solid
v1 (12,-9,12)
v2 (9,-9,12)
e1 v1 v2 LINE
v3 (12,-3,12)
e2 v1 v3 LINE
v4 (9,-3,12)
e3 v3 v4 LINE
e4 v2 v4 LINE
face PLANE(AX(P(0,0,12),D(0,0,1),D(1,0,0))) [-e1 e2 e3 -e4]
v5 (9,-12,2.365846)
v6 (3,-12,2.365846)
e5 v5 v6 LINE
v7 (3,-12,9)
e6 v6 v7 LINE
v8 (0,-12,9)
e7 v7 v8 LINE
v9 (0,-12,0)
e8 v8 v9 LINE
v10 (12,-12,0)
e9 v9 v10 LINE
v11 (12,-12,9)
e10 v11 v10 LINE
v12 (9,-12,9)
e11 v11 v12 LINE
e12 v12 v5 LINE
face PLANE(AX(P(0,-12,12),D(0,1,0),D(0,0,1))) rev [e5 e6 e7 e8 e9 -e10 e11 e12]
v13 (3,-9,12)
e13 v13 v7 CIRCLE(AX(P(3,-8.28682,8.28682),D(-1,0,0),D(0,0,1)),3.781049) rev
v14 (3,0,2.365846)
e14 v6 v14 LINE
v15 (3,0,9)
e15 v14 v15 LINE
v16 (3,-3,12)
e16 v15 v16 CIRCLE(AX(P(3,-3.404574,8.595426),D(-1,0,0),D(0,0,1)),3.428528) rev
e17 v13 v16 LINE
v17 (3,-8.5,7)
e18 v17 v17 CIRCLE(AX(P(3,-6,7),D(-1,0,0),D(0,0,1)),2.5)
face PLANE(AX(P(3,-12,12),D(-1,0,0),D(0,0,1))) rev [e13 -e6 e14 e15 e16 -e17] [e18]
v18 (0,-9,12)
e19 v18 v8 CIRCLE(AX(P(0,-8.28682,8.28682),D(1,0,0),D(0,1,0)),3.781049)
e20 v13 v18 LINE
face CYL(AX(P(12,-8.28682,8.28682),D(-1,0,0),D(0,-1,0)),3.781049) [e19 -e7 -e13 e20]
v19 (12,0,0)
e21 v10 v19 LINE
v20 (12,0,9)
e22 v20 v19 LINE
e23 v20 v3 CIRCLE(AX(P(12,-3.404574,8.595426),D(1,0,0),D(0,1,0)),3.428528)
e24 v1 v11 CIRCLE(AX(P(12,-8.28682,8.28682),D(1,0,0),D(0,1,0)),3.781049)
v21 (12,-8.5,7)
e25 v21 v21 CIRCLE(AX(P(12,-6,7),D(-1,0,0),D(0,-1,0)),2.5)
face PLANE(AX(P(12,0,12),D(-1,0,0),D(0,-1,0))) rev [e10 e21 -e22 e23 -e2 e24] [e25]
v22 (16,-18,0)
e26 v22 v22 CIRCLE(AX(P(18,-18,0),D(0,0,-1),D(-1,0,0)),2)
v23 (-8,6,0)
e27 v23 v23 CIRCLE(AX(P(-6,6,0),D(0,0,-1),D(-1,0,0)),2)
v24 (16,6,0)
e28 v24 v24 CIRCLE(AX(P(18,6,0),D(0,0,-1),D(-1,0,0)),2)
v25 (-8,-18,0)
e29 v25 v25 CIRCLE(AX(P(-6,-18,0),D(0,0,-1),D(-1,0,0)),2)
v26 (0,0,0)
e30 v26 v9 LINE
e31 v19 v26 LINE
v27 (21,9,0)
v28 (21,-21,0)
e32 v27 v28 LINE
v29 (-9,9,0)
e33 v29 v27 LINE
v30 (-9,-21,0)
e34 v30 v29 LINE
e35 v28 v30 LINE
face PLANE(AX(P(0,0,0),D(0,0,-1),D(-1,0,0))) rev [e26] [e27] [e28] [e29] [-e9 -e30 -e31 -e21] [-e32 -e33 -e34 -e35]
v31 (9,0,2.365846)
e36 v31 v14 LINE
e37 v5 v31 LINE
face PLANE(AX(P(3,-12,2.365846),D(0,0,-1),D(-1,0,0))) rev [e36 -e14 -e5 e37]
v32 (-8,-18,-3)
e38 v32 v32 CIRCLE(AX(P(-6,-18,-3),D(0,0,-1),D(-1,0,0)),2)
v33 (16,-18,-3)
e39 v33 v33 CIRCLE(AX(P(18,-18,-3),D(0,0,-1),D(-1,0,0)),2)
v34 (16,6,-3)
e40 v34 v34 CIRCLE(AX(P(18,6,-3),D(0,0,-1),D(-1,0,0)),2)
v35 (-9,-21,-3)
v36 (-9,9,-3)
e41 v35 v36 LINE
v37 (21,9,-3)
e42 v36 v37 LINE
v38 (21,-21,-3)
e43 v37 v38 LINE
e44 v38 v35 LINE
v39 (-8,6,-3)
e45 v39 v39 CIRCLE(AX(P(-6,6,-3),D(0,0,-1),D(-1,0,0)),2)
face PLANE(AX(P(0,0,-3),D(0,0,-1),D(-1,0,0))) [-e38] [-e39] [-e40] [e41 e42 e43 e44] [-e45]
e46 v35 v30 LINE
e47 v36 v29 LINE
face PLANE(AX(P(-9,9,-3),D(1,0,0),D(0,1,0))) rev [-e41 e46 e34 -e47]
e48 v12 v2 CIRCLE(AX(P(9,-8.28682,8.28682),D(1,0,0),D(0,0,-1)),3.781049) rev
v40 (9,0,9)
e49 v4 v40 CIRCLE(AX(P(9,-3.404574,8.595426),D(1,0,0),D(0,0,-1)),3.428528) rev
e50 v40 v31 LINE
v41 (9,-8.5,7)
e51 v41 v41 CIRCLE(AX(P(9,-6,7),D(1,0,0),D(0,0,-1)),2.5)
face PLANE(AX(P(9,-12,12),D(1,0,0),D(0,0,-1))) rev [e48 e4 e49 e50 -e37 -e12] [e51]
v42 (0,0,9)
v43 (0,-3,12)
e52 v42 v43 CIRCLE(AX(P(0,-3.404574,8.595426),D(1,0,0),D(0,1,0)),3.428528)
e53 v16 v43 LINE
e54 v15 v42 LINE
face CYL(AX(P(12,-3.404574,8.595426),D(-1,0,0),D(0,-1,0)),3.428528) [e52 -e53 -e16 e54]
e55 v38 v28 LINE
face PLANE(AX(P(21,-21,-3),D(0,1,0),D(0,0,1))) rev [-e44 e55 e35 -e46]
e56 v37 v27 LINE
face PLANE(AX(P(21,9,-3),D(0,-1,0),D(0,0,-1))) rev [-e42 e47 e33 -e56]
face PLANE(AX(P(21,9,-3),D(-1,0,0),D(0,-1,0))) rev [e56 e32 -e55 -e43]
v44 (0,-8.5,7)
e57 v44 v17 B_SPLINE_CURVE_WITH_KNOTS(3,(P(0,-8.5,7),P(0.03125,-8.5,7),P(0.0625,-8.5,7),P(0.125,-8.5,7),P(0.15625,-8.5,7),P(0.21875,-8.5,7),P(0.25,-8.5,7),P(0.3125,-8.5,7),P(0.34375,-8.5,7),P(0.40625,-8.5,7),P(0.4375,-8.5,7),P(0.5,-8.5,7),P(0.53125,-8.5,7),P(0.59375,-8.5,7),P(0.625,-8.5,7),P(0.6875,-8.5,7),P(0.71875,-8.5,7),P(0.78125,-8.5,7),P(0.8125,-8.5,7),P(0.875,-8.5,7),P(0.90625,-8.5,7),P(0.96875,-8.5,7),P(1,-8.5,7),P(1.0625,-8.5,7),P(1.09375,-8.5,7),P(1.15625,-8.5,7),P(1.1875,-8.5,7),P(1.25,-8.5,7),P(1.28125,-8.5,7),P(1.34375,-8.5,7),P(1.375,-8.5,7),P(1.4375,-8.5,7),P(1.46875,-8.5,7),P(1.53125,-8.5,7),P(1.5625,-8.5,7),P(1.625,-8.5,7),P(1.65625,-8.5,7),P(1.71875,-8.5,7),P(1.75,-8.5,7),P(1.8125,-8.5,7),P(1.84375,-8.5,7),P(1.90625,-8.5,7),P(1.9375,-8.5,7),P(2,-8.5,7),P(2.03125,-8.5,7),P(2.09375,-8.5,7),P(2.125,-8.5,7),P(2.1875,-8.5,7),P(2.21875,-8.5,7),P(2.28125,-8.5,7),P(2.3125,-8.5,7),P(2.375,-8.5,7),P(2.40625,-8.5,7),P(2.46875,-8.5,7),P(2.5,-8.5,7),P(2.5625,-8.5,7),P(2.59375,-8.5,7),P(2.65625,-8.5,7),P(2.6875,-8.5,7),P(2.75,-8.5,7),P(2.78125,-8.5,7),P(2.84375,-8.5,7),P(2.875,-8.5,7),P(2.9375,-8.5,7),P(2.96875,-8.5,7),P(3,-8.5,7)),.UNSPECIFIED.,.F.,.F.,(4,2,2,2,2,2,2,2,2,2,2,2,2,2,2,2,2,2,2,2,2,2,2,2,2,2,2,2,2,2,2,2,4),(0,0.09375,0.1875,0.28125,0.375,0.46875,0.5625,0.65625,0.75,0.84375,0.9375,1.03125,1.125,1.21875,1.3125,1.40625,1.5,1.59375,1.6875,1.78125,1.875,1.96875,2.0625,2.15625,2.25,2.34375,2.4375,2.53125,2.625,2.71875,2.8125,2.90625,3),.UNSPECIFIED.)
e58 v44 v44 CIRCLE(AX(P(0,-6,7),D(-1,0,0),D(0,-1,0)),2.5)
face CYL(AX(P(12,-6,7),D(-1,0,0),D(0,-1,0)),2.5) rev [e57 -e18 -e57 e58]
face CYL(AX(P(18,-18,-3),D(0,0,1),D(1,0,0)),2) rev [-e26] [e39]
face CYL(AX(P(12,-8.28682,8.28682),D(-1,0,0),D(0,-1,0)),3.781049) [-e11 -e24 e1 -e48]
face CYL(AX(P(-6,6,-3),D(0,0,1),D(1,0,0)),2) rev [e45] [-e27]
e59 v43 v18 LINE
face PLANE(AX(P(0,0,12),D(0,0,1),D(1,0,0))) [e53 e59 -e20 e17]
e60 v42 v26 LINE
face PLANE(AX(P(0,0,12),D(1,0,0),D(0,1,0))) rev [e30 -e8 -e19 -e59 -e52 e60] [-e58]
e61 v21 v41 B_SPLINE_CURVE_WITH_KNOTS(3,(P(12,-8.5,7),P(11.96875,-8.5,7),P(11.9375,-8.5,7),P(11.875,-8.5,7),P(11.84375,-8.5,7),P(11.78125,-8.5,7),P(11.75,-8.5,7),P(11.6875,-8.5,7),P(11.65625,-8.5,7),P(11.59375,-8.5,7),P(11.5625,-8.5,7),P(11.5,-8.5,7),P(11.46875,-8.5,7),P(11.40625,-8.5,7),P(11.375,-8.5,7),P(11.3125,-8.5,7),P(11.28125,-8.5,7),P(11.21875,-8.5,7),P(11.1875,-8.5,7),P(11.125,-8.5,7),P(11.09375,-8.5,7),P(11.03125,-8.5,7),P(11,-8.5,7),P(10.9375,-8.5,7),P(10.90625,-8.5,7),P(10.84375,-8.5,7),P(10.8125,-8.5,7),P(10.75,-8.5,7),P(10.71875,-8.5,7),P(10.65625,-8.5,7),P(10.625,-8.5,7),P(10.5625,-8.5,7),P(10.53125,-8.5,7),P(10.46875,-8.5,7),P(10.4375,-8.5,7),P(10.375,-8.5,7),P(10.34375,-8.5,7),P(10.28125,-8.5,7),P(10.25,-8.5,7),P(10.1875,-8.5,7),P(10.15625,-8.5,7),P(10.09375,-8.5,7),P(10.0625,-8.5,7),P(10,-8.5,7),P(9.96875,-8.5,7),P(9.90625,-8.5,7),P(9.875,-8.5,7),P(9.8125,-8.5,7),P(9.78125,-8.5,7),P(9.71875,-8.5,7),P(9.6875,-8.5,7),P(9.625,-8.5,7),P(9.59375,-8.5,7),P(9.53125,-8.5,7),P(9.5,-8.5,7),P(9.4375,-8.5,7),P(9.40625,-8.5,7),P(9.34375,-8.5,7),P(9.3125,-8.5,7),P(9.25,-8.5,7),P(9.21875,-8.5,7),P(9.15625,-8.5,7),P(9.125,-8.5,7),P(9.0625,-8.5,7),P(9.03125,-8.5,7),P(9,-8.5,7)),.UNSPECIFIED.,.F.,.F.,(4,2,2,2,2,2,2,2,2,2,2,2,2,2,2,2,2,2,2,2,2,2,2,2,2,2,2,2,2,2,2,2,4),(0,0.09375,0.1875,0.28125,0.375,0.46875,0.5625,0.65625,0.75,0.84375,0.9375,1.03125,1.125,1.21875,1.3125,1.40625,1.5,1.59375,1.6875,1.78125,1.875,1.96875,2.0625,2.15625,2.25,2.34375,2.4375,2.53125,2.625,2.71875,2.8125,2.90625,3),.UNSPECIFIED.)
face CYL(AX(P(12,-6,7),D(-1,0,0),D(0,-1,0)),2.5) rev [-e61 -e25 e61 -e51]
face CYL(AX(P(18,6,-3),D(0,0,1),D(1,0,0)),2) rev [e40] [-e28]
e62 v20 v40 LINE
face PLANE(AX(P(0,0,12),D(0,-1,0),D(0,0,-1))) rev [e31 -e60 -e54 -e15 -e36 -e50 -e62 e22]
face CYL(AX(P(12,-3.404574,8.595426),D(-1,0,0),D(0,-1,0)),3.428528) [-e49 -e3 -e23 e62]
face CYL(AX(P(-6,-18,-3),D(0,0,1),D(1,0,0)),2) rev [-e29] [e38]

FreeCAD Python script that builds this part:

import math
import FreeCAD as App
import Part
import Sketcher
from FreeCAD import Vector
Q = App.Units.Quantity


def add_polygon(sketch, points):
    """Adds a closed chain of lines whose ends are joined by coincident constraints."""
    first, n = sketch.GeometryCount, len(points)
    for a, b in zip(points, points[1:] + points[:1]):
        sketch.addGeometry(Part.LineSegment(App.Vector(*a, 0), App.Vector(*b, 0)), False)
    for i in range(n):
        sketch.addConstraint(Sketcher.Constraint("Coincident", first + i, 2, first + (i + 1) % n, 1))

doc = App.newDocument("Part")
body = doc.addObject("PartDesign::Body", "Body")

sketch1 = body.newObject("Sketcher::SketchObject", "Sketch")
sketch1.AttachmentSupport = (doc.getObject("XY_Plane"), [""])
sketch1.MapMode = "FlatFace"
add_polygon(sketch1, [(0, 0), (0, -12), (12, -12), (12, 0)])
sketch1.addConstraint(Sketcher.Constraint("Vertical", 0))
sketch1.addConstraint(Sketcher.Constraint("Horizontal", 1))
sketch1.addConstraint(Sketcher.Constraint("Vertical", 2))
sketch1.addConstraint(Sketcher.Constraint("Horizontal", 3))
sketch1.addConstraint(Sketcher.Constraint("Coincident", 3, 2, -1, 1))
sketch1.addConstraint(Sketcher.Constraint("Equal", 3, 0))
sketch1.addConstraint(Sketcher.Constraint("DistanceX", 1, 1, 1, 2, Q("12 mm")))
pad1 = body.newObject("PartDesign::Pad", "Pad")
pad1.Profile = sketch1
pad1.Length = 12

sketch2 = body.newObject("Sketcher::SketchObject", "Sketch001")
sketch2.AttachmentSupport = (doc.getObject("XZ_Plane"), [""])
sketch2.MapMode = "FlatFace"
add_polygon(sketch2, [(3, 2.365846), (3, 12), (9, 12), (9, 2.365846)])
sketch2.addConstraint(Sketcher.Constraint("Vertical", 0))
sketch2.addConstraint(Sketcher.Constraint("Horizontal", 1))
sketch2.addConstraint(Sketcher.Constraint("Vertical", 2))
sketch2.addConstraint(Sketcher.Constraint("Horizontal", 3))
sketch2.addConstraint(Sketcher.Constraint("DistanceX", 1, 1, 1, 2, Q("6 mm")))
sketch2.addConstraint(Sketcher.Constraint("DistanceX", -1, 1, 0, 2, Q("3 mm")))
sketch2.addConstraint(Sketcher.Constraint("DistanceY", -1, 1, 0, 2, Q("12 mm")))
sketch2.addConstraint(Sketcher.Constraint("DistanceY", 0, 1, 0, 2, Q("9.634154 mm")))
pocket1 = body.newObject("PartDesign::Pocket", "Pocket")
pocket1.Profile = sketch2
pocket1.Type = "ThroughAll"
pocket1.Reversed = True

sketch3 = body.newObject("Sketcher::SketchObject", "Sketch002")
sketch3.AttachmentSupport = (doc.getObject("YZ_Plane"), [""])
sketch3.MapMode = "FlatFace"
sketch3.addGeometry(Part.Circle(Vector(-6, 7, 0), Vector(0, 0, 1), 2.5), False)
sketch3.addGeometry(Part.LineSegment(Vector(-12, 9, 0), Vector(-12, 12, 0)), False)
sketch3.addGeometry(Part.LineSegment(Vector(-12, 12, 0), Vector(-9, 12, 0)), False)
sketch3.addGeometry(Part.ArcOfCircle(Part.Circle(Vector(-8.28682, 8.28682, 0), Vector(0, 0, 1), 3.781049), math.radians(100.87224), math.radians(169.12776)), False)
sketch3.addGeometry(Part.LineSegment(Vector(-3, 12, 0), Vector(0, 12, 0)), False)
sketch3.addGeometry(Part.LineSegment(Vector(0, 12, 0), Vector(0, 9, 0)), False)
sketch3.addGeometry(Part.ArcOfCircle(Part.Circle(Vector(-3.404574, 8.595426, 0), Vector(0, 0, 1), 3.428528), math.radians(6.776822), math.radians(83.223178)), False)
sketch3.addConstraint(Sketcher.Constraint("Coincident", 1, 2, 2, 1))
sketch3.addConstraint(Sketcher.Constraint("Coincident", 2, 2, 3, 1))
sketch3.addConstraint(Sketcher.Constraint("Coincident", 3, 2, 1, 1))
sketch3.addConstraint(Sketcher.Constraint("Coincident", 4, 2, 5, 1))
sketch3.addConstraint(Sketcher.Constraint("Coincident", 5, 2, 6, 1))
sketch3.addConstraint(Sketcher.Constraint("Coincident", 6, 2, 4, 1))
sketch3.addConstraint(Sketcher.Constraint("Vertical", 1))
sketch3.addConstraint(Sketcher.Constraint("Horizontal", 2))
sketch3.addConstraint(Sketcher.Constraint("Horizontal", 4))
sketch3.addConstraint(Sketcher.Constraint("Vertical", 5))
sketch3.addConstraint(Sketcher.Constraint("PointOnObject", 4, 2, -2))
sketch3.addConstraint(Sketcher.Constraint("Horizontal", 2, 2, 4, 2))
sketch3.addConstraint(Sketcher.Constraint("Horizontal", 3, 2, 5, 2))
sketch3.addConstraint(Sketcher.Constraint("Equal", 2, 4))
sketch3.addConstraint(Sketcher.Constraint("Equal", 4, 1))
sketch3.addConstraint(Sketcher.Constraint("Diameter", 0, Q("5 mm")))
sketch3.addConstraint(Sketcher.Constraint("DistanceX", 2, 1, 2, 2, Q("3 mm")))
sketch3.addConstraint(Sketcher.Constraint("DistanceX", 0, 3, -1, 1, Q("6 mm")))
sketch3.addConstraint(Sketcher.Constraint("DistanceY", -1, 1, 0, 3, Q("7 mm")))
sketch3.addConstraint(Sketcher.Constraint("DistanceX", 1, 2, -1, 1, Q("12 mm")))
sketch3.addConstraint(Sketcher.Constraint("DistanceY", -1, 1, 1, 2, Q("12 mm")))
sketch3.addConstraint(Sketcher.Constraint("Radius", 3, Q("3.781049 mm")))
sketch3.addConstraint(Sketcher.Constraint("Radius", 6, Q("3.428528 mm")))
pocket2 = body.newObject("PartDesign::Pocket", "Pocket001")
pocket2.Profile = sketch3
pocket2.Type = "ThroughAll"
pocket2.Reversed = True

sketch4 = body.newObject("Sketcher::SketchObject", "Sketch003")
sketch4.AttachmentSupport = (doc.getObject("XY_Plane"), [""])
sketch4.MapMode = "FlatFace"
add_polygon(sketch4, [(21, 9), (21, -21), (-9, -21), (-9, 9)])
sketch4.addGeometry(Part.Circle(Vector(18, -18, 0), Vector(0, 0, 1), 2), False)
sketch4.addGeometry(Part.Circle(Vector(-6, -18, 0), Vector(0, 0, 1), 2), False)
sketch4.addGeometry(Part.Circle(Vector(18, 6, 0), Vector(0, 0, 1), 2), False)
sketch4.addGeometry(Part.Circle(Vector(-6, 6, 0), Vector(0, 0, 1), 2), False)
sketch4.addConstraint(Sketcher.Constraint("Vertical", 0))
sketch4.addConstraint(Sketcher.Constraint("Horizontal", 1))
sketch4.addConstraint(Sketcher.Constraint("Vertical", 2))
sketch4.addConstraint(Sketcher.Constraint("Horizontal", 3))
sketch4.addConstraint(Sketcher.Constraint("Equal", 4, 5))
sketch4.addConstraint(Sketcher.Constraint("Equal", 5, 6))
sketch4.addConstraint(Sketcher.Constraint("Equal", 6, 7))
sketch4.addConstraint(Sketcher.Constraint("Horizontal", 4, 3, 5, 3))
sketch4.addConstraint(Sketcher.Constraint("Horizontal", 6, 3, 7, 3))
sketch4.addConstraint(Sketcher.Constraint("Vertical", 4, 3, 6, 3))
sketch4.addConstraint(Sketcher.Constraint("Vertical", 5, 3, 7, 3))
sketch4.addConstraint(Sketcher.Constraint("Equal", 3, 0))
sketch4.addConstraint(Sketcher.Constraint("Diameter", 4, Q("4 mm")))
sketch4.addConstraint(Sketcher.Constraint("DistanceX", 1, 2, 1, 1, Q("30 mm")))
sketch4.addConstraint(Sketcher.Constraint("DistanceX", -1, 1, 4, 3, Q("18 mm")))
sketch4.addConstraint(Sketcher.Constraint("DistanceY", 4, 3, -1, 1, Q("18 mm")))
sketch4.addConstraint(Sketcher.Constraint("DistanceX", 5, 3, -1, 1, Q("6 mm")))
sketch4.addConstraint(Sketcher.Constraint("DistanceY", -1, 1, 6, 3, Q("6 mm")))
sketch4.addConstraint(Sketcher.Constraint("DistanceX", -1, 1, 0, 2, Q("21 mm")))
sketch4.addConstraint(Sketcher.Constraint("DistanceY", 0, 2, -1, 1, Q("21 mm")))
pad2 = body.newObject("PartDesign::Pad", "Pad001")
pad2.Profile = sketch4
pad2.Length = 3
pad2.Reversed = True

doc.recompute()
